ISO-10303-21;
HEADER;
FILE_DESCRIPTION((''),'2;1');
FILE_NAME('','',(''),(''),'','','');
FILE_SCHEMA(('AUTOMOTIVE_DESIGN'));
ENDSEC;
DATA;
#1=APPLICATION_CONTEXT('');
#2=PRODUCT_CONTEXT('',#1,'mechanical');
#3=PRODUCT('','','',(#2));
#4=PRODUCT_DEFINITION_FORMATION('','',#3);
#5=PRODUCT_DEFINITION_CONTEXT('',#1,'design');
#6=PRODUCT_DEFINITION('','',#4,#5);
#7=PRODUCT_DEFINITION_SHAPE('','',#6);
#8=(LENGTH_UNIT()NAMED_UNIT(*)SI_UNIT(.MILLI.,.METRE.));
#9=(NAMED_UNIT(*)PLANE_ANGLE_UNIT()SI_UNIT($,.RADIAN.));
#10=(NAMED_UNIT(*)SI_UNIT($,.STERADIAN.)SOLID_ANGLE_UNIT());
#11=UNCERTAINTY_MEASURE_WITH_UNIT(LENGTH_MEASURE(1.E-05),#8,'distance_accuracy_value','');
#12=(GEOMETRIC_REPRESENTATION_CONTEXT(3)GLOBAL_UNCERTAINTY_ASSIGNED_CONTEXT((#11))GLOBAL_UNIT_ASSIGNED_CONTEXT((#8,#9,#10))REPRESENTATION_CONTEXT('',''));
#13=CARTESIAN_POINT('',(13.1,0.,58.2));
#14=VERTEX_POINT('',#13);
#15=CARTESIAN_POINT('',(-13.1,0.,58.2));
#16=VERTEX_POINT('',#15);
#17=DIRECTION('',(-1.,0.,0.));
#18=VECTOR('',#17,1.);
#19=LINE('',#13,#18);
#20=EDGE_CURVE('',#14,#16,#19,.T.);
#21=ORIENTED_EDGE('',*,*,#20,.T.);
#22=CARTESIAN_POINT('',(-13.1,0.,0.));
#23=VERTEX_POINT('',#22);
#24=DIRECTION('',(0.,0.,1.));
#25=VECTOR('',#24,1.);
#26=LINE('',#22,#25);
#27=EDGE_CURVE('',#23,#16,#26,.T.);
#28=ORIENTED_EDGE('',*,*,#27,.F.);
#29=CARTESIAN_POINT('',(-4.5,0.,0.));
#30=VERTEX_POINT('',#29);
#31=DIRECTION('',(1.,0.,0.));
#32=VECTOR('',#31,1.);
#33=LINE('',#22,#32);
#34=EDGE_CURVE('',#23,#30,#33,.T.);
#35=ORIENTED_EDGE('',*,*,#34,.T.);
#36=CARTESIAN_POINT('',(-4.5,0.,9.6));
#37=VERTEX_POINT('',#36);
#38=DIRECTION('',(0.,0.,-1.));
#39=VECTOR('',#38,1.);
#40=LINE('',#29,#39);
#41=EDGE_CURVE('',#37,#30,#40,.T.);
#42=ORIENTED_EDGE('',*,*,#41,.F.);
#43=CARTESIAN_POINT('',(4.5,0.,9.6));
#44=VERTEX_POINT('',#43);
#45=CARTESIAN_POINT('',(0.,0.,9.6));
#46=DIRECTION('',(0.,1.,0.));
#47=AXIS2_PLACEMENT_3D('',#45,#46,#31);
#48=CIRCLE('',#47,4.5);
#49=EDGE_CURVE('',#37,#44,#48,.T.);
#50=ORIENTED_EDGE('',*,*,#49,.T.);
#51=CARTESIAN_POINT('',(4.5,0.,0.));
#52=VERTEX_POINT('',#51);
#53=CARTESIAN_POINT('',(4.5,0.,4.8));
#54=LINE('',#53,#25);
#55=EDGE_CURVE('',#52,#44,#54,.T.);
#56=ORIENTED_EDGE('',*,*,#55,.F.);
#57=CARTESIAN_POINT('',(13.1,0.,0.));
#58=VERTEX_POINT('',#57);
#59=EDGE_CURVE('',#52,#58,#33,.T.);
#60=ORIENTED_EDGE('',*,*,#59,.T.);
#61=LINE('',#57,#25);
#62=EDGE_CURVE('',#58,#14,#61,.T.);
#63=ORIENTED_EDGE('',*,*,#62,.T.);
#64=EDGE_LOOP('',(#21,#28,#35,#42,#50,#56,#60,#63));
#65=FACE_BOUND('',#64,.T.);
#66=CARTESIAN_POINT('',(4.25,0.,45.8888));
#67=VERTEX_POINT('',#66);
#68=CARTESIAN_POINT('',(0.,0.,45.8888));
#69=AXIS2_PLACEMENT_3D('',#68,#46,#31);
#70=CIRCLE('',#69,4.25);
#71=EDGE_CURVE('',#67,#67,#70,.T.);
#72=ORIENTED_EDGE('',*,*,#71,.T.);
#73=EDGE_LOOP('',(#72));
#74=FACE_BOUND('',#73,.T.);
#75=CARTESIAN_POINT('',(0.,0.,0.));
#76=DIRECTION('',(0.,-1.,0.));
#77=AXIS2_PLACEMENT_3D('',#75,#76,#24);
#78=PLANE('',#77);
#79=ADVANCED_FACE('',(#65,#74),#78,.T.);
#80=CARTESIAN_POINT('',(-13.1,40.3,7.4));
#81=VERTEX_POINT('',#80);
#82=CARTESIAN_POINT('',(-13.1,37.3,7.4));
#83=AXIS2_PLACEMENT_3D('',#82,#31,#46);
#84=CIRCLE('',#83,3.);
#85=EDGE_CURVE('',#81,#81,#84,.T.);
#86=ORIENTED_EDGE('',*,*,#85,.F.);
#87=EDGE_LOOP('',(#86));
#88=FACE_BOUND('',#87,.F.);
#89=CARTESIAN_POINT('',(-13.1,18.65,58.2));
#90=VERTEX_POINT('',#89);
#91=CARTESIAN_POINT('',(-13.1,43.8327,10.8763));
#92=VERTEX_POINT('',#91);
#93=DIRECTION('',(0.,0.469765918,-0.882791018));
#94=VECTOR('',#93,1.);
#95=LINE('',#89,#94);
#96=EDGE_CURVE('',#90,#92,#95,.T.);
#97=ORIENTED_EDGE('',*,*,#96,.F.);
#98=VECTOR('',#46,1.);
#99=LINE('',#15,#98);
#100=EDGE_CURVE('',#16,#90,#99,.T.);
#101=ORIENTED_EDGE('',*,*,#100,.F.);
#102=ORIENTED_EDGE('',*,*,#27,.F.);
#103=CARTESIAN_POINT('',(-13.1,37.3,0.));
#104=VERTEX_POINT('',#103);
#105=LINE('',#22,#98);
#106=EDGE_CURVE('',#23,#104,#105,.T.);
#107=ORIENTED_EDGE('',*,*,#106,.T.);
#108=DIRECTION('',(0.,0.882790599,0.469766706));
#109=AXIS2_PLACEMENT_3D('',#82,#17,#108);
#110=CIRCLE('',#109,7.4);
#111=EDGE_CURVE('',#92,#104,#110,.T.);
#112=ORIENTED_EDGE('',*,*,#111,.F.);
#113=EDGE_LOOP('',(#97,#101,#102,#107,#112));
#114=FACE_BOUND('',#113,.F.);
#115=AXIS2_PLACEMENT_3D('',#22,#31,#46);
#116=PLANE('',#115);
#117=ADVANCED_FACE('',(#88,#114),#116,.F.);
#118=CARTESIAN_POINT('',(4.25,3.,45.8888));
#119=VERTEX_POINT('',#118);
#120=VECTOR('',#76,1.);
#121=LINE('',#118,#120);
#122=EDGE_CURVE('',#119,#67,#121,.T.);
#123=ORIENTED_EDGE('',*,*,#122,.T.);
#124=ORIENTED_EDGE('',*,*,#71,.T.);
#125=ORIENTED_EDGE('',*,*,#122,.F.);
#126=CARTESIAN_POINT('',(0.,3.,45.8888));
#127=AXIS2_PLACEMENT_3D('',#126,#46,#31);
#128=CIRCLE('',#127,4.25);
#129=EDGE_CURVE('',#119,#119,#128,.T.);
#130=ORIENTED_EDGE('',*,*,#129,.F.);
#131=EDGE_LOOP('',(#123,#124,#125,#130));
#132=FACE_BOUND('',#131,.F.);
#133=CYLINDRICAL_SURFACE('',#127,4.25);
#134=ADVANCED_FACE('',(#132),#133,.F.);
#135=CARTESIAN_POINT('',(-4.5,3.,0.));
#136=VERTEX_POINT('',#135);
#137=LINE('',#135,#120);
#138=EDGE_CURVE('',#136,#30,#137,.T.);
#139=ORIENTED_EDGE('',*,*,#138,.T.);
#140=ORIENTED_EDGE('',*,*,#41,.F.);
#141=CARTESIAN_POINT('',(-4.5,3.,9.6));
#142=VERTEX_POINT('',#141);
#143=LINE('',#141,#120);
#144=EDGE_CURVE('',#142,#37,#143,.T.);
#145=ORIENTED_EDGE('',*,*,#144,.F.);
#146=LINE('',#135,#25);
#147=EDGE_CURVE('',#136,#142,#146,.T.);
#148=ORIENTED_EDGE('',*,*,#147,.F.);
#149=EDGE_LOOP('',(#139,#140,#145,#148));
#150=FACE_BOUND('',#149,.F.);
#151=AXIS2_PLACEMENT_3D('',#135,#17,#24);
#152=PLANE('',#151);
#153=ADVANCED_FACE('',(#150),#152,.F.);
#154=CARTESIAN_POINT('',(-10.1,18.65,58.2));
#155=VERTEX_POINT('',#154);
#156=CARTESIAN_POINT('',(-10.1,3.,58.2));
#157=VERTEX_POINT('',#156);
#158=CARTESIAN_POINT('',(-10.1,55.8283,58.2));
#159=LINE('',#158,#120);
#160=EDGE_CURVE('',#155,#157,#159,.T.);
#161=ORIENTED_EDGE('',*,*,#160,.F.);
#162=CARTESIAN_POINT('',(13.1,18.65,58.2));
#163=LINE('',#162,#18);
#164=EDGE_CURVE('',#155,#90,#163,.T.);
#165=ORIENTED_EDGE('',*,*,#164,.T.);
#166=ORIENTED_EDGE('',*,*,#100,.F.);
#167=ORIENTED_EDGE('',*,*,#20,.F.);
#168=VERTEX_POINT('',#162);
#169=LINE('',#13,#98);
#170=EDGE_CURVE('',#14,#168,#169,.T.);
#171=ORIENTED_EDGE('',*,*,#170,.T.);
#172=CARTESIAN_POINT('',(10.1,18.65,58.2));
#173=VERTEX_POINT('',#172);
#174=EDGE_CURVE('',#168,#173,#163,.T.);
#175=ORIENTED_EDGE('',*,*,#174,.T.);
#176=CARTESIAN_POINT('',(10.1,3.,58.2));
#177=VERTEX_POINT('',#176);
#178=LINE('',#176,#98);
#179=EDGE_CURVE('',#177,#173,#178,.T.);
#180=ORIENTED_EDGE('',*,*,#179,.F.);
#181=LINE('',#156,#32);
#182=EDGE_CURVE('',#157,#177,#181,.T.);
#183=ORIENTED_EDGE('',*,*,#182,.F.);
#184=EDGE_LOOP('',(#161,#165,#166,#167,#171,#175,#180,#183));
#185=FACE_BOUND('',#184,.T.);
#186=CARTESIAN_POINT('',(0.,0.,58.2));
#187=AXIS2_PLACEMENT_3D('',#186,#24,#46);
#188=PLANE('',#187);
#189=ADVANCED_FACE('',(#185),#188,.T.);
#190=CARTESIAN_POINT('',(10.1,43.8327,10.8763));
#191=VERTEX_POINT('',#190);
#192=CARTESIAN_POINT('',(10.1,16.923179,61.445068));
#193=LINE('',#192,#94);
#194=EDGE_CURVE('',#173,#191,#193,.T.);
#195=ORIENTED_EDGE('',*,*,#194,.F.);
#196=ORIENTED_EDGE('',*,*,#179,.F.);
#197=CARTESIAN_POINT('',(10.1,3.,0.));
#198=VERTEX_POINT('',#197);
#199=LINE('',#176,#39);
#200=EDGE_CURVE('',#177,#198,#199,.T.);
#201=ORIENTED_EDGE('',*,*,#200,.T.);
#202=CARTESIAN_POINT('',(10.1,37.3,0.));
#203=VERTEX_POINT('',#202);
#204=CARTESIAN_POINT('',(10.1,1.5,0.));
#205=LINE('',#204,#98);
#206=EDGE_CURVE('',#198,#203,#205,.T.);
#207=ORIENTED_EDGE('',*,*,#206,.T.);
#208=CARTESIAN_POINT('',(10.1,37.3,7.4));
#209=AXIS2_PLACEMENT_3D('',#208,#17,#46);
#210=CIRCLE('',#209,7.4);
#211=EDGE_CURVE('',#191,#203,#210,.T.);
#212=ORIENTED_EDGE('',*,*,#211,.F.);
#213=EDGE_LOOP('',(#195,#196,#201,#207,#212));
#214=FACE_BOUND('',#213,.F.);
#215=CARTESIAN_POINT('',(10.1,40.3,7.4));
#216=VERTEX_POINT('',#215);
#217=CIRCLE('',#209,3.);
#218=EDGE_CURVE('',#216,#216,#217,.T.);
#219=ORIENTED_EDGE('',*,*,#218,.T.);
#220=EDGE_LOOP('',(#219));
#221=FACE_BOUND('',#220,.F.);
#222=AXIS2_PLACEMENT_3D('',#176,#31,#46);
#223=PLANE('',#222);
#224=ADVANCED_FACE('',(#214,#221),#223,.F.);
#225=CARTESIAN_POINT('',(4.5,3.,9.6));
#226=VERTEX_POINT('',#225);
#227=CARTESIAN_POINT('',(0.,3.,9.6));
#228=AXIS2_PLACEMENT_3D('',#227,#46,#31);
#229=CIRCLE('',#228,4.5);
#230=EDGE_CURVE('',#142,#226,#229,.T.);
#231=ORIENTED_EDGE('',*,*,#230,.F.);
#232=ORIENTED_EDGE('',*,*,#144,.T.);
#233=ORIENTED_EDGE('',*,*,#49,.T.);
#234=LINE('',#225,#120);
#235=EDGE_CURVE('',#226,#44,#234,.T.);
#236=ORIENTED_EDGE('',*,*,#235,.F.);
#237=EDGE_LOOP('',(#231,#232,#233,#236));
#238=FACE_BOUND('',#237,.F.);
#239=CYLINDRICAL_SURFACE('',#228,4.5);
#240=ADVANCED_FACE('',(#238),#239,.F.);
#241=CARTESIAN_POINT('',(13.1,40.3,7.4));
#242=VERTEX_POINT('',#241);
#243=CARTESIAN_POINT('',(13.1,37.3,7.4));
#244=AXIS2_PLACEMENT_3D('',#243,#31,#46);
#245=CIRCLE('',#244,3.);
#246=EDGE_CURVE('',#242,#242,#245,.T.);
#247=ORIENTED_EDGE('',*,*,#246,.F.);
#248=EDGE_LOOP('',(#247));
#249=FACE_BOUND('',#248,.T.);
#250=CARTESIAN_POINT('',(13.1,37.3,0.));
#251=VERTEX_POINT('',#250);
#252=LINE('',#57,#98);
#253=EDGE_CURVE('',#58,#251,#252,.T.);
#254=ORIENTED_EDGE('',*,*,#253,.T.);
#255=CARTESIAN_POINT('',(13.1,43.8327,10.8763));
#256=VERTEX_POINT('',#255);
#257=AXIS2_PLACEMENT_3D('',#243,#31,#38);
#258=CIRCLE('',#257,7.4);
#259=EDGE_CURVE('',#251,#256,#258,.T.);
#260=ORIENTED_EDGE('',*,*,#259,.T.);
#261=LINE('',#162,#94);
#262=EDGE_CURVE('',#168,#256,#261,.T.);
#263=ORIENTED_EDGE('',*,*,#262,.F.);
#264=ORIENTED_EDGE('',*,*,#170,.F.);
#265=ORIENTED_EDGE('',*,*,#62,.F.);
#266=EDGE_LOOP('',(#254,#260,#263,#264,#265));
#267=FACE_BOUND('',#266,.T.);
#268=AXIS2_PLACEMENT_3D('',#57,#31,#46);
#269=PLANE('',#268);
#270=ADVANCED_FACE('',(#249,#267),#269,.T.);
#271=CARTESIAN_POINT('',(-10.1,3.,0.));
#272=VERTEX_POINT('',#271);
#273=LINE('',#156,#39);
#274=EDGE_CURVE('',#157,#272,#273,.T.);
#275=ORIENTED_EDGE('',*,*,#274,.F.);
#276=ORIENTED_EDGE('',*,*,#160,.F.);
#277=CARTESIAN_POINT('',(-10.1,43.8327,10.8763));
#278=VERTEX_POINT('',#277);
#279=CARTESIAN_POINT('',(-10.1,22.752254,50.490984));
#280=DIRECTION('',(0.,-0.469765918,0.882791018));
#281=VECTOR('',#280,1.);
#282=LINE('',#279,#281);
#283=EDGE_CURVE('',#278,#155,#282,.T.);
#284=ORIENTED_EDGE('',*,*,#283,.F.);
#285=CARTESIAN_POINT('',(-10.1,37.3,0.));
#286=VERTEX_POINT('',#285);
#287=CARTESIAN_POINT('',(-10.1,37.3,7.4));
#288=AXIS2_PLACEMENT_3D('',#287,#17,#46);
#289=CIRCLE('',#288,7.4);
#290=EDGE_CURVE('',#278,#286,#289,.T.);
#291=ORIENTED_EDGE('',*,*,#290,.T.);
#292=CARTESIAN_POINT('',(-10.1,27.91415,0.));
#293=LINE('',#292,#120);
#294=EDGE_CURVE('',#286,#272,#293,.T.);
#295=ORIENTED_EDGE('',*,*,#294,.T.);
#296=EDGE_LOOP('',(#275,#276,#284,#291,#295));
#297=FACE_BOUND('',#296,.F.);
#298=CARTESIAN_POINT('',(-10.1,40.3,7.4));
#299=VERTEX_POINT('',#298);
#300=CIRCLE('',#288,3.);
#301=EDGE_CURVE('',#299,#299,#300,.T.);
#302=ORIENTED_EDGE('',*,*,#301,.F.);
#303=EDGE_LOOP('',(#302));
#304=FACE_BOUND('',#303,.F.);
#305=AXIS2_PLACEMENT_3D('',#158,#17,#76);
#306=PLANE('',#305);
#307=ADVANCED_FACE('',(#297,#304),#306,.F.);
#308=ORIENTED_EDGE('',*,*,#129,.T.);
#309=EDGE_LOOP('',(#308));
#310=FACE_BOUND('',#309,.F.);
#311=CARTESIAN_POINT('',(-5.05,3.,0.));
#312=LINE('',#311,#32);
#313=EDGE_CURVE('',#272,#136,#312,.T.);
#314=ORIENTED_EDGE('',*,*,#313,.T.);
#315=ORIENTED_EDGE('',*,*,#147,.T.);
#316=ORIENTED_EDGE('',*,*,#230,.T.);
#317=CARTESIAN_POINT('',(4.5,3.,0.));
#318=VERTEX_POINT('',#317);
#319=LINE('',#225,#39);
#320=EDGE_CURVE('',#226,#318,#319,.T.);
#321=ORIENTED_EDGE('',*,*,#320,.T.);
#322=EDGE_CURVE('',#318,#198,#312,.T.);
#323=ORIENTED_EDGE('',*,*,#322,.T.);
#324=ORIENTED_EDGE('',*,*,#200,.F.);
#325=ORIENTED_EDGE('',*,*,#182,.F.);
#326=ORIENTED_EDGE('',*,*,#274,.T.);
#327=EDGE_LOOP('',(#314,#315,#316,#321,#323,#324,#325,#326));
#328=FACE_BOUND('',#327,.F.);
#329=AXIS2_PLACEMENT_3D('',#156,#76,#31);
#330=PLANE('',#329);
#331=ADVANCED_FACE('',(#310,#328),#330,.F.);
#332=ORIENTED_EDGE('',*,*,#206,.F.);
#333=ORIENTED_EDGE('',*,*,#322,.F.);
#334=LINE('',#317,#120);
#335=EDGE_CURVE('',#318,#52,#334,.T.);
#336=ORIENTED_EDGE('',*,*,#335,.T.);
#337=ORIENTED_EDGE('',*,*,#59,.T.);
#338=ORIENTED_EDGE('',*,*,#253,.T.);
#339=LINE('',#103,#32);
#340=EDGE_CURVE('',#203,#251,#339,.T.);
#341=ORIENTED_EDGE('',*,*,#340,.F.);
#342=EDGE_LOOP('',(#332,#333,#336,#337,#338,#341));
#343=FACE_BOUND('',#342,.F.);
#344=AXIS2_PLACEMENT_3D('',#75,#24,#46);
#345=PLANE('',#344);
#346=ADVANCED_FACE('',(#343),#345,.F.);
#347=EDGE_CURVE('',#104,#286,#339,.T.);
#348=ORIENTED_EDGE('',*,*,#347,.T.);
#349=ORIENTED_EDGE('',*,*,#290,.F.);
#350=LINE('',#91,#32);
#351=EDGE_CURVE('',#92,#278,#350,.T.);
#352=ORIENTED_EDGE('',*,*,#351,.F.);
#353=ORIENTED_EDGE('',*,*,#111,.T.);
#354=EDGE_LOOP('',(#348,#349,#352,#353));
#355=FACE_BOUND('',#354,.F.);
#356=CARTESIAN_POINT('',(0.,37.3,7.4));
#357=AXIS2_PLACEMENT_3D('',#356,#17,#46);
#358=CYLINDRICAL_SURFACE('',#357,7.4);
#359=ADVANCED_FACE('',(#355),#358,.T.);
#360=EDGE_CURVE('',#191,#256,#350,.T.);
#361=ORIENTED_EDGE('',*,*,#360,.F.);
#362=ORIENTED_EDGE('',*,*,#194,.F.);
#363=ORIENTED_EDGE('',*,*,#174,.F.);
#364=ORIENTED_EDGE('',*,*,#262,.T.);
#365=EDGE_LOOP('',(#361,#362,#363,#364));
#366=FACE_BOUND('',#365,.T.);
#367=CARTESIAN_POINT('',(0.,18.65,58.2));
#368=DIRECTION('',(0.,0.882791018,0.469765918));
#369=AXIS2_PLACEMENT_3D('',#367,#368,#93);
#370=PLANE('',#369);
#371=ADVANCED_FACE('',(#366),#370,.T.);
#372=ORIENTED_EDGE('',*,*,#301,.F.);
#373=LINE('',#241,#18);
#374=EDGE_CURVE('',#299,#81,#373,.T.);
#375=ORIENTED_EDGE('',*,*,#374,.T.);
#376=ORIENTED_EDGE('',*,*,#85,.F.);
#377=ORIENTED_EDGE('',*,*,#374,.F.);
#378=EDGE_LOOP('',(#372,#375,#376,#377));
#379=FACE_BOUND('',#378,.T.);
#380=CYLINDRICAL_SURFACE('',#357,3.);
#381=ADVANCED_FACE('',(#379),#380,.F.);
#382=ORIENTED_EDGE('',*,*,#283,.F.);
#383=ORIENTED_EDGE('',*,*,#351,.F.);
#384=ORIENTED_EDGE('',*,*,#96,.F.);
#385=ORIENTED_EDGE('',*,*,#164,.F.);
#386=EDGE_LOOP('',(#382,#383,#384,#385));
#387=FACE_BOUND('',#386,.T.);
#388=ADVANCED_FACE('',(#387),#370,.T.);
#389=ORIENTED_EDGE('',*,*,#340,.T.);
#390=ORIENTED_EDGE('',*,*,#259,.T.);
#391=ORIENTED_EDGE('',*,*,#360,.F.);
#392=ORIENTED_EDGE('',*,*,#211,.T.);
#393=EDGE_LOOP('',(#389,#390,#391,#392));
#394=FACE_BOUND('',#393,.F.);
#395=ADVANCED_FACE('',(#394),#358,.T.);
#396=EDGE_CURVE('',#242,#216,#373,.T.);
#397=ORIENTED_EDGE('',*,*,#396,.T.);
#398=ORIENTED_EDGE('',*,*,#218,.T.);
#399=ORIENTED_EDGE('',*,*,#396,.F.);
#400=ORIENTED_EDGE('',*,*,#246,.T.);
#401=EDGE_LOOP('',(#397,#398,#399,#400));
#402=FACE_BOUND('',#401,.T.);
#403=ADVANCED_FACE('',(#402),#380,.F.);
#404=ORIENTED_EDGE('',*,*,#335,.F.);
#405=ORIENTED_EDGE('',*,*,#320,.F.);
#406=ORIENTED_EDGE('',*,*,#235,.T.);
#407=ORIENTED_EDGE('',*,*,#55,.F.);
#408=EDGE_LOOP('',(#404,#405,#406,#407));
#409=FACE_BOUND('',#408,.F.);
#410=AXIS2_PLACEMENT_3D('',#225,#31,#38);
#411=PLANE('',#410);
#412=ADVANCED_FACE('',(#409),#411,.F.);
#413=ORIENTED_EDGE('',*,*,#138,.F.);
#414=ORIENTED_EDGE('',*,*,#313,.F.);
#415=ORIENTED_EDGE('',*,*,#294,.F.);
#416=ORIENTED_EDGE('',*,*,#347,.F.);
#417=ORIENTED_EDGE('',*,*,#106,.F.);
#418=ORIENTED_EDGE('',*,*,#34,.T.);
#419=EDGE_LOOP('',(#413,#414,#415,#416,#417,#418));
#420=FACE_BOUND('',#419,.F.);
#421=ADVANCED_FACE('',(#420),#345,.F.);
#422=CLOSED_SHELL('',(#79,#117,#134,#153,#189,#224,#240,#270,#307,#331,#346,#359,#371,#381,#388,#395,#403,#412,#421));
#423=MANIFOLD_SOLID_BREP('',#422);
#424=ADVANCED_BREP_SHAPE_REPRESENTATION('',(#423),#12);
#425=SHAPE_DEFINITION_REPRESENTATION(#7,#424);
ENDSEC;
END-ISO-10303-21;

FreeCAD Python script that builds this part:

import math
import FreeCAD as App
import Part
import Sketcher
from FreeCAD import Vector


def add_polygon(sketch, points):
    """Adds a closed chain of lines whose ends are joined by coincident constraints."""
    first, n = sketch.GeometryCount, len(points)
    for a, b in zip(points, points[1:] + points[:1]):
        sketch.addGeometry(Part.LineSegment(App.Vector(*a, 0), App.Vector(*b, 0)), False)
    for i in range(n):
        sketch.addConstraint(Sketcher.Constraint("Coincident", first + i, 2, first + (i + 1) % n, 1))

doc = App.newDocument("Part")
body = doc.addObject("PartDesign::Body", "Body")

# Sketch on YZ plane
sketch1 = body.newObject("Sketcher::SketchObject", "Sketch")
sketch1.AttachmentSupport = (doc.getObject("YZ_Plane"), [""])
sketch1.MapMode = "FlatFace"
sketch1.addGeometry([
    Part.LineSegment(Vector(0, 58.2, 0), Vector(0, 0, 0)),  # 0
    Part.LineSegment(Vector(0, 0, 0), Vector(37.3, 0, 0)),  # 1
    Part.ArcOfCircle(Part.Circle(Vector(37.3, 7.4, 0), Vector(0, 0, 1), 7.4), math.radians(-90), math.radians(28)),  # 2
    Part.LineSegment(Vector(43.8, 10.9, 0), Vector(18.6, 58.2, 0)),  # 3
    Part.LineSegment(Vector(18.6, 58.2, 0), Vector(0, 58.2, 0)),  # 4
    Part.Circle(Vector(37.3, 7.4, 0), Vector(0, 0, 1), 3),  # 5
], False)
sketch1.addConstraint([
    Sketcher.Constraint("Coincident", 0, 2, 1, 1),
    Sketcher.Constraint("Tangent", 1, 2, 2, 1),
    Sketcher.Constraint("Tangent", 2, 2, 3, 1),
    Sketcher.Constraint("Coincident", 3, 2, 4, 1),
    Sketcher.Constraint("Coincident", 4, 2, 0, 1),
    Sketcher.Constraint("Vertical", 0),
    Sketcher.Constraint("Horizontal", 1),
    Sketcher.Constraint("Horizontal", 4),
    Sketcher.Constraint("Coincident", 0, 2, -1, 1),
    Sketcher.Constraint("Coincident", 5, 3, 2, 3),
    Sketcher.Constraint("Diameter", 5, 6.0),
    Sketcher.Constraint("Radius", 2, 7.4),
    Sketcher.Constraint("DistanceX", 1, 1, 1, 2, 37.3),
    Sketcher.Constraint("DistanceY", 0, 2, 0, 1, 58.2),
    Sketcher.Constraint("DistanceX", 4, 2, 4, 1, 18.65),
])
pad1 = body.newObject("PartDesign::Pad", "Pad")
pad1.Profile = sketch1
pad1.Length = 26.2
pad1.Midplane = True

# Sketch on XY plane
sketch2 = body.newObject("Sketcher::SketchObject", "Sketch001")
sketch2.AttachmentSupport = (doc.getObject("XY_Plane"), [""])
sketch2.MapMode = "FlatFace"
sketch2.AttachmentOffset = App.Placement(Vector(0, 0, 58.2), App.Rotation())
add_polygon(sketch2, [(-10, 56), (-10, 3), (10, 3), (10, 56)])  # lines 0-3
sketch2.addConstraint([
    Sketcher.Constraint("Vertical", 0),
    Sketcher.Constraint("Horizontal", 1),
    Sketcher.Constraint("Vertical", 2),
    Sketcher.Constraint("Horizontal", 3),
    Sketcher.Constraint("DistanceY", -1, 1, 0, 2, 3.0),
    Sketcher.Constraint("DistanceX", 1, 1, 1, 2, 20.2),
    Sketcher.Constraint("DistanceX", 0, 2, -1, 1, 10.1),
    Sketcher.Constraint("DistanceY", 0, 2, 0, 1, 52.8283),
])
pocket1 = body.newObject("PartDesign::Pocket", "Pocket")
pocket1.Profile = sketch2
pocket1.Type = "ThroughAll"

# Sketch on XZ plane
sketch3 = body.newObject("Sketcher::SketchObject", "Sketch002")
sketch3.AttachmentSupport = (doc.getObject("XZ_Plane"), [""])
sketch3.MapMode = "FlatFace"
sketch3.AttachmentOffset = App.Placement(Vector(0, 0, -3), App.Rotation())
sketch3.addGeometry([
    Part.ArcOfCircle(Part.Circle(Vector(0, 9.6, 0), Vector(0, 0, 1), 4.5), math.radians(0), math.radians(180)),  # 0
    Part.LineSegment(Vector(4.5, 9.6, 0), Vector(4.5, 0, 0)),  # 1
    Part.LineSegment(Vector(4.5, 0, 0), Vector(-4.5, 0, 0)),  # 2
    Part.LineSegment(Vector(-4.5, 0, 0), Vector(-4.5, 9.6, 0)),  # 3
    Part.Circle(Vector(0, 45.9, 0), Vector(0, 0, 1), 4.2),  # 4
], False)
sketch3.addConstraint([
    Sketcher.Constraint("Tangent", 0, 1, 1, 1),
    Sketcher.Constraint("Coincident", 1, 2, 2, 1),
    Sketcher.Constraint("Coincident", 2, 2, 3, 1),
    Sketcher.Constraint("Tangent", 3, 2, 0, 2),
    Sketcher.Constraint("Vertical", 1),
    Sketcher.Constraint("Horizontal", 2),
    Sketcher.Constraint("Vertical", 3),
    Sketcher.Constraint("Symmetric", 1, 2, 2, 2, -1, 1),
    Sketcher.Constraint("PointOnObject", 4, 3, -2),
    Sketcher.Constraint("Diameter", 4, 8.5),
    Sketcher.Constraint("Radius", 0, 4.5),
    Sketcher.Constraint("DistanceY", 1, 2, 1, 1, 9.6),
    Sketcher.Constraint("DistanceY", -1, 1, 4, 3, 45.8888),
])
pocket2 = body.newObject("PartDesign::Pocket", "Pocket001")
pocket2.Profile = sketch3
pocket2.Type = "ThroughAll"
pocket2.Reversed = True

doc.recompute()
